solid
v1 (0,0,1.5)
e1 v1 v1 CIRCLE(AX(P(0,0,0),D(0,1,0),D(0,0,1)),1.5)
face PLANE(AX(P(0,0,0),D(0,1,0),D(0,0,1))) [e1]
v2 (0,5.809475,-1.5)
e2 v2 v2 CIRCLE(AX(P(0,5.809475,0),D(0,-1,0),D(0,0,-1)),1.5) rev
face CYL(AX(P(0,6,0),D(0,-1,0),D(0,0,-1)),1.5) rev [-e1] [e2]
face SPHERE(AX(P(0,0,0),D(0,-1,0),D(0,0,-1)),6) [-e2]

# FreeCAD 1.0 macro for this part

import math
import FreeCAD as App
import Part
import Sketcher
Q = App.Units.Quantity

doc = App.newDocument("Part")
params = doc.addObject("Spreadsheet::Sheet", "Params")
for row, (alias, value) in enumerate([
    ("sketch1_radius", "6 mm"),
    ("revolution_angle", "360 deg"),
    ("sketch2_diameter", "3 mm"),
], start=1):
    params.set(f"A{row}", alias)
    params.set(f"B{row}", "=" + value)
    params.setAlias(f"B{row}", alias)

body = doc.addObject("PartDesign::Body", "Body")

# Sketch on XZ plane
sketch1 = body.newObject("Sketcher::SketchObject", "Sketch")
sketch1.AttachmentSupport = (doc.getObject("XZ_Plane"), [""])
sketch1.MapMode = "FlatFace"
sketch1.addGeometry([
    Part.ArcOfCircle(Part.Circle(App.Vector(0, 0, 0), App.Vector(0, 0, 1), 6), math.radians(0), math.radians(90)),
    Part.ArcOfCircle(Part.Circle(App.Vector(0, 0, 0), App.Vector(0, 0, 1), 6), math.radians(-90), math.radians(0)),
    Part.LineSegment(App.Vector(0, -6, 0), App.Vector(0, 6, 0)),
], False)
sketch1.addConstraint([
    Sketcher.Constraint("Tangent", 0, 1, 1, 2),
    Sketcher.Constraint("Coincident", 1, 1, 2, 1),
    Sketcher.Constraint("Coincident", 2, 2, 0, 2),
    Sketcher.Constraint("Vertical", 2),
    Sketcher.Constraint("Coincident", 0, 3, -1, 1),
    Sketcher.Constraint("Equal", 0, 1),
    Sketcher.Constraint("PointOnObject", 0, 1, -1),
    Sketcher.Constraint("PointOnObject", 1, 1, -2),
    Sketcher.Constraint("Radius", 0, Q("6 mm")),
])
sketch1.setExpression("Constraints[8]", "Params.sketch1_radius")
revolution = body.newObject("PartDesign::Revolution", "Revolution")
revolution.Profile = sketch1
revolution.ReferenceAxis = (sketch1, ["V_Axis"])
revolution.setExpression("Angle", "Params.revolution_angle")

# Sketch on XZ plane
sketch2 = body.newObject("Sketcher::SketchObject", "Sketch001")
sketch2.AttachmentSupport = (doc.getObject("XZ_Plane"), [""])
sketch2.MapMode = "FlatFace"
sketch2.addGeometry(Part.Circle(App.Vector(0, 0, 0), App.Vector(0, 0, 1), 1.5), False)
sketch2.addConstraint([
    Sketcher.Constraint("Coincident", 0, 3, -1, 1),
    Sketcher.Constraint("Diameter", 0, Q("3 mm")),
])
sketch2.setExpression("Constraints[1]", "Params.sketch2_diameter")
pocket1 = body.newObject("PartDesign::Pocket", "Pocket")
pocket1.Profile = sketch2
pocket1.Type = "ThroughAll"

doc.recompute()
